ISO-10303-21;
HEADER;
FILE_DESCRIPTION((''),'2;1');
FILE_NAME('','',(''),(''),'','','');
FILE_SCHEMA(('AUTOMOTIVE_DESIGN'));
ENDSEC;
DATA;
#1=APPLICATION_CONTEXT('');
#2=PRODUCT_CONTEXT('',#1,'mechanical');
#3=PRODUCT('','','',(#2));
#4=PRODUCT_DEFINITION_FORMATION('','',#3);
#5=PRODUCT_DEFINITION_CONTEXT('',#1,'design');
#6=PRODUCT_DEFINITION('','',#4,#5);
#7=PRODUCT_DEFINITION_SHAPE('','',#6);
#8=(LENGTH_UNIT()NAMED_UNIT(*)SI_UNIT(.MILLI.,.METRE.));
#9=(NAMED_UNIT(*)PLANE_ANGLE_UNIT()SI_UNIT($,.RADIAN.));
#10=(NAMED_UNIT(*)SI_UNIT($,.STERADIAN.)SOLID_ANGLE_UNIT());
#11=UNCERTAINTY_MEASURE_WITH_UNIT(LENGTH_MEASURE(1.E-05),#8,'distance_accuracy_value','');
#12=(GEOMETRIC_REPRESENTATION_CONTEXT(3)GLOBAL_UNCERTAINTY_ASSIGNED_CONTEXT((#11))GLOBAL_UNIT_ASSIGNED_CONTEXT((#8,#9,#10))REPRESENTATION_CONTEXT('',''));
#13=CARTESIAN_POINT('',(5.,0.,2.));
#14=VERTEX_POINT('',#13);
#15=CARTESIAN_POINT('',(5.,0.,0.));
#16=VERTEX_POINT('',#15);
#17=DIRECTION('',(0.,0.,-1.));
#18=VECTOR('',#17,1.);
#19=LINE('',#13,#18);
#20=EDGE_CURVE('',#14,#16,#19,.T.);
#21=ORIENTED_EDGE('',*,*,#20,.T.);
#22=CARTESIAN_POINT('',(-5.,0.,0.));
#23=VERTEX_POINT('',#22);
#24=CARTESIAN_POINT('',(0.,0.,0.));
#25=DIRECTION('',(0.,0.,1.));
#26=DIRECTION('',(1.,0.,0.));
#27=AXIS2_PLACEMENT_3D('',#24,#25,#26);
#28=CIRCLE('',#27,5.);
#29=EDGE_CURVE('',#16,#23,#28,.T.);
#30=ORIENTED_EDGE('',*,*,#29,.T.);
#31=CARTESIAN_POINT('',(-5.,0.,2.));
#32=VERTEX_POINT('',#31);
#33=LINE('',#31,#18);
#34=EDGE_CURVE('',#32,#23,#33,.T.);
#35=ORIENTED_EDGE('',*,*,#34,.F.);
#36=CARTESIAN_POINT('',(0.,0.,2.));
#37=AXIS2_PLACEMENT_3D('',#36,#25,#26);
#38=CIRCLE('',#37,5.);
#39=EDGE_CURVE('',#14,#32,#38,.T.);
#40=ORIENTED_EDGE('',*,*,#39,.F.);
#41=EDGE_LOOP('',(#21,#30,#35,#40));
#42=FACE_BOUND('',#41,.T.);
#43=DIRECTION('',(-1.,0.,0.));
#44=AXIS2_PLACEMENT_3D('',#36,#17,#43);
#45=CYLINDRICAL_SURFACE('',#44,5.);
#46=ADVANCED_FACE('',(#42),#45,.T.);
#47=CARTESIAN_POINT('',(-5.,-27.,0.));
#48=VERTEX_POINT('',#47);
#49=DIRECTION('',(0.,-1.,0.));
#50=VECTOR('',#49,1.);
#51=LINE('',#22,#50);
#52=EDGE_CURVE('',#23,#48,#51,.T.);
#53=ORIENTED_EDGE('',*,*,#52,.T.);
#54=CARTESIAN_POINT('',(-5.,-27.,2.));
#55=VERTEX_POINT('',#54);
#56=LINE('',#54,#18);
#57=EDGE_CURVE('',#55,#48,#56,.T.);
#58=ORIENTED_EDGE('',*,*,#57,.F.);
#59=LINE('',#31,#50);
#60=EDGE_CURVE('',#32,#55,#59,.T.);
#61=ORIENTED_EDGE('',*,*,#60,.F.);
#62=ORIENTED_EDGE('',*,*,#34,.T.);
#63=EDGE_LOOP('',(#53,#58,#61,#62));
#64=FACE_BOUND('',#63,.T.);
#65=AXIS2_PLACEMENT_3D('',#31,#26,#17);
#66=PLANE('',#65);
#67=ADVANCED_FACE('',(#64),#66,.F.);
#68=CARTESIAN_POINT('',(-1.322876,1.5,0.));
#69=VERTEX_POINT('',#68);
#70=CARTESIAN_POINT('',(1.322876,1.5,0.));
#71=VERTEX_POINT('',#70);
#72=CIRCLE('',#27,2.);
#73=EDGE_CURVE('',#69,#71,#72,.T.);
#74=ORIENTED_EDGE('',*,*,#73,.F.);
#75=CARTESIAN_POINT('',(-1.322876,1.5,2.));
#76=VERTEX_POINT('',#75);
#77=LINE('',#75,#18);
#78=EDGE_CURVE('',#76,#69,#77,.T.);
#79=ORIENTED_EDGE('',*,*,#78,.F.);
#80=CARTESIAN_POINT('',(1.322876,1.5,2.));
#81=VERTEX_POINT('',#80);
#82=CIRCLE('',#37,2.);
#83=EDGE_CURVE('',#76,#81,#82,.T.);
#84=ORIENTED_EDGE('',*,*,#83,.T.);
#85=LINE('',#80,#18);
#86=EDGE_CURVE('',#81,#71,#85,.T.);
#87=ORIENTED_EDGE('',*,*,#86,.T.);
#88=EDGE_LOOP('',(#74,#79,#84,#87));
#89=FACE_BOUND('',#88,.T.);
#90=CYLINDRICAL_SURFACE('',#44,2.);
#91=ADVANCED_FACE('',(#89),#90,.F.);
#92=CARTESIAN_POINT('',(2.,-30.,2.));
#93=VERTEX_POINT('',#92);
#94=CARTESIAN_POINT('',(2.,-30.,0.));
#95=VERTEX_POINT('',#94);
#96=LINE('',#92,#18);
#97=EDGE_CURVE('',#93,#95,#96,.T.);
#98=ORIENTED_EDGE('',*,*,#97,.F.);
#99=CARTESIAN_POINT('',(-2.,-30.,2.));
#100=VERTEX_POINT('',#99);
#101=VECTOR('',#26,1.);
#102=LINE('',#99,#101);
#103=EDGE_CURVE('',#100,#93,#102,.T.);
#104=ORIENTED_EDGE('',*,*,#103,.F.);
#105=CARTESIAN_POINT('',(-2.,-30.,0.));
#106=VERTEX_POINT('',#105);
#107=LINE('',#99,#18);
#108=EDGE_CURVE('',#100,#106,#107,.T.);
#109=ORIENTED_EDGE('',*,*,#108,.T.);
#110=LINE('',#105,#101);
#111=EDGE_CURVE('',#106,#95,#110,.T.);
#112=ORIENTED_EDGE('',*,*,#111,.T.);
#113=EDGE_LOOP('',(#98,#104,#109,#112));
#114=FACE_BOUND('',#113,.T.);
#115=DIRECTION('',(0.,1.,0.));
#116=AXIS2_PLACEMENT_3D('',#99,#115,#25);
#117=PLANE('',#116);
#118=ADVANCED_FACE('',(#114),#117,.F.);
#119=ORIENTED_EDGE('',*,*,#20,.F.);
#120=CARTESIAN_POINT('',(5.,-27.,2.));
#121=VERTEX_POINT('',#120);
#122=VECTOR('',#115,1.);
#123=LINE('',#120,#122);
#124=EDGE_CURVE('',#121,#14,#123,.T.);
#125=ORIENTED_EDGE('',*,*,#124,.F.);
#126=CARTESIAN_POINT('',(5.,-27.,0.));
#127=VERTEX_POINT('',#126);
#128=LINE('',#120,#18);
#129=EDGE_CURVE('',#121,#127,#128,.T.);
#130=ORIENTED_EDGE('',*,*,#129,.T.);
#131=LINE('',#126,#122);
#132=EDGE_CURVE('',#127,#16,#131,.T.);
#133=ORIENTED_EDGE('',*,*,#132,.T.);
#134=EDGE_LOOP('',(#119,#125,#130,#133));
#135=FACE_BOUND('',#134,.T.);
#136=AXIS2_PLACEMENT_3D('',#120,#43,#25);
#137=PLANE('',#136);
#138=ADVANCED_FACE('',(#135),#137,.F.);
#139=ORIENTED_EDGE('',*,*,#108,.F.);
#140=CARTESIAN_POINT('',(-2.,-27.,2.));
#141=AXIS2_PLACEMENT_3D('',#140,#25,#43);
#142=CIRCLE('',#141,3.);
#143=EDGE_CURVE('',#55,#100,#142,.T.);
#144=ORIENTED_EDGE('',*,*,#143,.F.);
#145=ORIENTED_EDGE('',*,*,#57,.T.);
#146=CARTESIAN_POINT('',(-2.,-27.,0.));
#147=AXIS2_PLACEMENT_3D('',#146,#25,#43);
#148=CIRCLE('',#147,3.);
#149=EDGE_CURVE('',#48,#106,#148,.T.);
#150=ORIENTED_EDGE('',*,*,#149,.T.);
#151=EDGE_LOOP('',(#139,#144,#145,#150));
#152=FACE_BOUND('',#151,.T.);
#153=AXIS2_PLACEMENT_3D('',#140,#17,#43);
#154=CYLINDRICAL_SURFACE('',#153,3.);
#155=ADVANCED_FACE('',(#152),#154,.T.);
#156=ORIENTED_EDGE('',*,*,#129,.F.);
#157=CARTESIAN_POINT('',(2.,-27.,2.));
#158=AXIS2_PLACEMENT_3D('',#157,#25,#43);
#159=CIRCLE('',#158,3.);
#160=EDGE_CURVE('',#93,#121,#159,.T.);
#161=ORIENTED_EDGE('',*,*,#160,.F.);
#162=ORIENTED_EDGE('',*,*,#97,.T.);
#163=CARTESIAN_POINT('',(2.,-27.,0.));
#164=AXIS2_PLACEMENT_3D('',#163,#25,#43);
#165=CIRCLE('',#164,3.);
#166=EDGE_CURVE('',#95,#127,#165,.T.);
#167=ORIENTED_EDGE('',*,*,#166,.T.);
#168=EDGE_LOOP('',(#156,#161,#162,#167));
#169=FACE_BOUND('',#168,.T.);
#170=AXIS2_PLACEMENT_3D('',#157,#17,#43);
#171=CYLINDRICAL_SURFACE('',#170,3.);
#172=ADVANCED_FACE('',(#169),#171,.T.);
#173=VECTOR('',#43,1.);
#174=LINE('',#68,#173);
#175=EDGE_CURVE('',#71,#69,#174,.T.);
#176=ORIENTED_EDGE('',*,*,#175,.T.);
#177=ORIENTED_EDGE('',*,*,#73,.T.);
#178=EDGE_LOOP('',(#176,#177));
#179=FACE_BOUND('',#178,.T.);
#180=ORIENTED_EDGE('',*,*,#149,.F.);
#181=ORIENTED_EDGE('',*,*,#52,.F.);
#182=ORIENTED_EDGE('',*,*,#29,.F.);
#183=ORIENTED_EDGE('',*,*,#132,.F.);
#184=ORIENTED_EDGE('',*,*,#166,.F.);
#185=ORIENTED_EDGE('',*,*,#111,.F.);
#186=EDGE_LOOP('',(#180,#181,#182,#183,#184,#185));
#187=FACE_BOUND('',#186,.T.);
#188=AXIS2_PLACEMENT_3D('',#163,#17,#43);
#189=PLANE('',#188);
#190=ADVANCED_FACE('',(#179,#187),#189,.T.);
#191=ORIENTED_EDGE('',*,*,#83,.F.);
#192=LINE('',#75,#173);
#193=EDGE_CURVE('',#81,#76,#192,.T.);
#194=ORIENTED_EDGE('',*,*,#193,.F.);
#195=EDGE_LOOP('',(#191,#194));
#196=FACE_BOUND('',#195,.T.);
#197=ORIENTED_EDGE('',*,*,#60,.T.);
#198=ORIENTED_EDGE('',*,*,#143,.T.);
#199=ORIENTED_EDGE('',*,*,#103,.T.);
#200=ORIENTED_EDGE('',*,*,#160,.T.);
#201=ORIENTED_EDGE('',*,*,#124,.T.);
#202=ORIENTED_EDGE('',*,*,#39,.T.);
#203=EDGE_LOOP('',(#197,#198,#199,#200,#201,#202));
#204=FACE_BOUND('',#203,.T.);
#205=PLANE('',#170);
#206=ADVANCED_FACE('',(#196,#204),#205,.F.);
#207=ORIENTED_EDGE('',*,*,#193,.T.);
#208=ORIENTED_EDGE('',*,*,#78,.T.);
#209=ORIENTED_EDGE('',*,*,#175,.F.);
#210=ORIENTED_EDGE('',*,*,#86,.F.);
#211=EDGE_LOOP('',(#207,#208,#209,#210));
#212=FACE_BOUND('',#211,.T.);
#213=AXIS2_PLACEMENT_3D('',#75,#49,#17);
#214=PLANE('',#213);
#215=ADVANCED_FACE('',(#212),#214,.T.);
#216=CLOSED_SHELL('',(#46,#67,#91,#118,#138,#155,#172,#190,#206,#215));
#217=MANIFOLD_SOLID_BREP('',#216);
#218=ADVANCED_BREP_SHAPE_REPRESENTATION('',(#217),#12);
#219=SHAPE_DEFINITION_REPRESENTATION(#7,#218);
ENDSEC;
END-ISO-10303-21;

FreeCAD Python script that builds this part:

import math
import FreeCAD as App
import Part
import Sketcher

V = App.Vector

doc = App.newDocument("Part")
body = doc.addObject("PartDesign::Body", "Body")

sketch1 = body.newObject("Sketcher::SketchObject", "Sketch")
sketch1.AttachmentSupport = (doc.getObject("XY_Plane"), [""])
sketch1.MapMode = "FlatFace"
sketch1.addGeometry(Part.LineSegment(V(-5, 0, 0), V(-5, -27, 0)), False)
sketch1.addGeometry(Part.ArcOfCircle(Part.Circle(V(-2, -27, 0), V(0, 0, 1), 3), math.radians(180), math.radians(270)), False)
sketch1.addGeometry(Part.LineSegment(V(-2, -30, 0), V(2, -30, 0)), False)
sketch1.addGeometry(Part.ArcOfCircle(Part.Circle(V(2, -27, 0), V(0, 0, 1), 3), math.radians(-90), math.radians(0)), False)
sketch1.addGeometry(Part.LineSegment(V(5, -27, 0), V(5, 0, 0)), False)
sketch1.addGeometry(Part.ArcOfCircle(Part.Circle(V(0, 0, 0), V(0, 0, 1), 5), math.radians(0), math.radians(180)), False)
sketch1.addGeometry(Part.ArcOfCircle(Part.Circle(V(0, 0, 0), V(0, 0, 1), 2), math.radians(131), math.radians(409)), False)
sketch1.addGeometry(Part.LineSegment(V(-1.3, 1.5, 0), V(1.3, 1.5, 0)), False)
sketch1.addConstraint(Sketcher.Constraint("Tangent", 0, 2, 1, 1))
sketch1.addConstraint(Sketcher.Constraint("Tangent", 1, 2, 2, 1))
sketch1.addConstraint(Sketcher.Constraint("Tangent", 2, 2, 3, 1))
sketch1.addConstraint(Sketcher.Constraint("Tangent", 3, 2, 4, 1))
sketch1.addConstraint(Sketcher.Constraint("Tangent", 4, 2, 5, 1))
sketch1.addConstraint(Sketcher.Constraint("Tangent", 5, 2, 0, 1))
sketch1.addConstraint(Sketcher.Constraint("Coincident", 6, 1, 7, 1))
sketch1.addConstraint(Sketcher.Constraint("Coincident", 7, 2, 6, 2))
sketch1.addConstraint(Sketcher.Constraint("Vertical", 0))
sketch1.addConstraint(Sketcher.Constraint("Horizontal", 2))
sketch1.addConstraint(Sketcher.Constraint("Vertical", 4))
sketch1.addConstraint(Sketcher.Constraint("Horizontal", 7))
sketch1.addConstraint(Sketcher.Constraint("Coincident", 5, 3, -1, 1))
sketch1.addConstraint(Sketcher.Constraint("Coincident", 6, 3, -1, 1))
sketch1.addConstraint(Sketcher.Constraint("Equal", 1, 3))
sketch1.addConstraint(Sketcher.Constraint("Radius", 1, 3.0))
sketch1.addConstraint(Sketcher.Constraint("Radius", 5, 5.0))
sketch1.addConstraint(Sketcher.Constraint("Radius", 6, 2.0))
sketch1.addConstraint(Sketcher.Constraint("DistanceY", 0, 2, 0, 1, 27.0))
sketch1.addConstraint(Sketcher.Constraint("DistanceY", -1, 1, 6, 1, 1.5))
pad1 = body.newObject("PartDesign::Pad", "Pad")
pad1.Profile = sketch1
pad1.Length = 2

doc.recompute()
